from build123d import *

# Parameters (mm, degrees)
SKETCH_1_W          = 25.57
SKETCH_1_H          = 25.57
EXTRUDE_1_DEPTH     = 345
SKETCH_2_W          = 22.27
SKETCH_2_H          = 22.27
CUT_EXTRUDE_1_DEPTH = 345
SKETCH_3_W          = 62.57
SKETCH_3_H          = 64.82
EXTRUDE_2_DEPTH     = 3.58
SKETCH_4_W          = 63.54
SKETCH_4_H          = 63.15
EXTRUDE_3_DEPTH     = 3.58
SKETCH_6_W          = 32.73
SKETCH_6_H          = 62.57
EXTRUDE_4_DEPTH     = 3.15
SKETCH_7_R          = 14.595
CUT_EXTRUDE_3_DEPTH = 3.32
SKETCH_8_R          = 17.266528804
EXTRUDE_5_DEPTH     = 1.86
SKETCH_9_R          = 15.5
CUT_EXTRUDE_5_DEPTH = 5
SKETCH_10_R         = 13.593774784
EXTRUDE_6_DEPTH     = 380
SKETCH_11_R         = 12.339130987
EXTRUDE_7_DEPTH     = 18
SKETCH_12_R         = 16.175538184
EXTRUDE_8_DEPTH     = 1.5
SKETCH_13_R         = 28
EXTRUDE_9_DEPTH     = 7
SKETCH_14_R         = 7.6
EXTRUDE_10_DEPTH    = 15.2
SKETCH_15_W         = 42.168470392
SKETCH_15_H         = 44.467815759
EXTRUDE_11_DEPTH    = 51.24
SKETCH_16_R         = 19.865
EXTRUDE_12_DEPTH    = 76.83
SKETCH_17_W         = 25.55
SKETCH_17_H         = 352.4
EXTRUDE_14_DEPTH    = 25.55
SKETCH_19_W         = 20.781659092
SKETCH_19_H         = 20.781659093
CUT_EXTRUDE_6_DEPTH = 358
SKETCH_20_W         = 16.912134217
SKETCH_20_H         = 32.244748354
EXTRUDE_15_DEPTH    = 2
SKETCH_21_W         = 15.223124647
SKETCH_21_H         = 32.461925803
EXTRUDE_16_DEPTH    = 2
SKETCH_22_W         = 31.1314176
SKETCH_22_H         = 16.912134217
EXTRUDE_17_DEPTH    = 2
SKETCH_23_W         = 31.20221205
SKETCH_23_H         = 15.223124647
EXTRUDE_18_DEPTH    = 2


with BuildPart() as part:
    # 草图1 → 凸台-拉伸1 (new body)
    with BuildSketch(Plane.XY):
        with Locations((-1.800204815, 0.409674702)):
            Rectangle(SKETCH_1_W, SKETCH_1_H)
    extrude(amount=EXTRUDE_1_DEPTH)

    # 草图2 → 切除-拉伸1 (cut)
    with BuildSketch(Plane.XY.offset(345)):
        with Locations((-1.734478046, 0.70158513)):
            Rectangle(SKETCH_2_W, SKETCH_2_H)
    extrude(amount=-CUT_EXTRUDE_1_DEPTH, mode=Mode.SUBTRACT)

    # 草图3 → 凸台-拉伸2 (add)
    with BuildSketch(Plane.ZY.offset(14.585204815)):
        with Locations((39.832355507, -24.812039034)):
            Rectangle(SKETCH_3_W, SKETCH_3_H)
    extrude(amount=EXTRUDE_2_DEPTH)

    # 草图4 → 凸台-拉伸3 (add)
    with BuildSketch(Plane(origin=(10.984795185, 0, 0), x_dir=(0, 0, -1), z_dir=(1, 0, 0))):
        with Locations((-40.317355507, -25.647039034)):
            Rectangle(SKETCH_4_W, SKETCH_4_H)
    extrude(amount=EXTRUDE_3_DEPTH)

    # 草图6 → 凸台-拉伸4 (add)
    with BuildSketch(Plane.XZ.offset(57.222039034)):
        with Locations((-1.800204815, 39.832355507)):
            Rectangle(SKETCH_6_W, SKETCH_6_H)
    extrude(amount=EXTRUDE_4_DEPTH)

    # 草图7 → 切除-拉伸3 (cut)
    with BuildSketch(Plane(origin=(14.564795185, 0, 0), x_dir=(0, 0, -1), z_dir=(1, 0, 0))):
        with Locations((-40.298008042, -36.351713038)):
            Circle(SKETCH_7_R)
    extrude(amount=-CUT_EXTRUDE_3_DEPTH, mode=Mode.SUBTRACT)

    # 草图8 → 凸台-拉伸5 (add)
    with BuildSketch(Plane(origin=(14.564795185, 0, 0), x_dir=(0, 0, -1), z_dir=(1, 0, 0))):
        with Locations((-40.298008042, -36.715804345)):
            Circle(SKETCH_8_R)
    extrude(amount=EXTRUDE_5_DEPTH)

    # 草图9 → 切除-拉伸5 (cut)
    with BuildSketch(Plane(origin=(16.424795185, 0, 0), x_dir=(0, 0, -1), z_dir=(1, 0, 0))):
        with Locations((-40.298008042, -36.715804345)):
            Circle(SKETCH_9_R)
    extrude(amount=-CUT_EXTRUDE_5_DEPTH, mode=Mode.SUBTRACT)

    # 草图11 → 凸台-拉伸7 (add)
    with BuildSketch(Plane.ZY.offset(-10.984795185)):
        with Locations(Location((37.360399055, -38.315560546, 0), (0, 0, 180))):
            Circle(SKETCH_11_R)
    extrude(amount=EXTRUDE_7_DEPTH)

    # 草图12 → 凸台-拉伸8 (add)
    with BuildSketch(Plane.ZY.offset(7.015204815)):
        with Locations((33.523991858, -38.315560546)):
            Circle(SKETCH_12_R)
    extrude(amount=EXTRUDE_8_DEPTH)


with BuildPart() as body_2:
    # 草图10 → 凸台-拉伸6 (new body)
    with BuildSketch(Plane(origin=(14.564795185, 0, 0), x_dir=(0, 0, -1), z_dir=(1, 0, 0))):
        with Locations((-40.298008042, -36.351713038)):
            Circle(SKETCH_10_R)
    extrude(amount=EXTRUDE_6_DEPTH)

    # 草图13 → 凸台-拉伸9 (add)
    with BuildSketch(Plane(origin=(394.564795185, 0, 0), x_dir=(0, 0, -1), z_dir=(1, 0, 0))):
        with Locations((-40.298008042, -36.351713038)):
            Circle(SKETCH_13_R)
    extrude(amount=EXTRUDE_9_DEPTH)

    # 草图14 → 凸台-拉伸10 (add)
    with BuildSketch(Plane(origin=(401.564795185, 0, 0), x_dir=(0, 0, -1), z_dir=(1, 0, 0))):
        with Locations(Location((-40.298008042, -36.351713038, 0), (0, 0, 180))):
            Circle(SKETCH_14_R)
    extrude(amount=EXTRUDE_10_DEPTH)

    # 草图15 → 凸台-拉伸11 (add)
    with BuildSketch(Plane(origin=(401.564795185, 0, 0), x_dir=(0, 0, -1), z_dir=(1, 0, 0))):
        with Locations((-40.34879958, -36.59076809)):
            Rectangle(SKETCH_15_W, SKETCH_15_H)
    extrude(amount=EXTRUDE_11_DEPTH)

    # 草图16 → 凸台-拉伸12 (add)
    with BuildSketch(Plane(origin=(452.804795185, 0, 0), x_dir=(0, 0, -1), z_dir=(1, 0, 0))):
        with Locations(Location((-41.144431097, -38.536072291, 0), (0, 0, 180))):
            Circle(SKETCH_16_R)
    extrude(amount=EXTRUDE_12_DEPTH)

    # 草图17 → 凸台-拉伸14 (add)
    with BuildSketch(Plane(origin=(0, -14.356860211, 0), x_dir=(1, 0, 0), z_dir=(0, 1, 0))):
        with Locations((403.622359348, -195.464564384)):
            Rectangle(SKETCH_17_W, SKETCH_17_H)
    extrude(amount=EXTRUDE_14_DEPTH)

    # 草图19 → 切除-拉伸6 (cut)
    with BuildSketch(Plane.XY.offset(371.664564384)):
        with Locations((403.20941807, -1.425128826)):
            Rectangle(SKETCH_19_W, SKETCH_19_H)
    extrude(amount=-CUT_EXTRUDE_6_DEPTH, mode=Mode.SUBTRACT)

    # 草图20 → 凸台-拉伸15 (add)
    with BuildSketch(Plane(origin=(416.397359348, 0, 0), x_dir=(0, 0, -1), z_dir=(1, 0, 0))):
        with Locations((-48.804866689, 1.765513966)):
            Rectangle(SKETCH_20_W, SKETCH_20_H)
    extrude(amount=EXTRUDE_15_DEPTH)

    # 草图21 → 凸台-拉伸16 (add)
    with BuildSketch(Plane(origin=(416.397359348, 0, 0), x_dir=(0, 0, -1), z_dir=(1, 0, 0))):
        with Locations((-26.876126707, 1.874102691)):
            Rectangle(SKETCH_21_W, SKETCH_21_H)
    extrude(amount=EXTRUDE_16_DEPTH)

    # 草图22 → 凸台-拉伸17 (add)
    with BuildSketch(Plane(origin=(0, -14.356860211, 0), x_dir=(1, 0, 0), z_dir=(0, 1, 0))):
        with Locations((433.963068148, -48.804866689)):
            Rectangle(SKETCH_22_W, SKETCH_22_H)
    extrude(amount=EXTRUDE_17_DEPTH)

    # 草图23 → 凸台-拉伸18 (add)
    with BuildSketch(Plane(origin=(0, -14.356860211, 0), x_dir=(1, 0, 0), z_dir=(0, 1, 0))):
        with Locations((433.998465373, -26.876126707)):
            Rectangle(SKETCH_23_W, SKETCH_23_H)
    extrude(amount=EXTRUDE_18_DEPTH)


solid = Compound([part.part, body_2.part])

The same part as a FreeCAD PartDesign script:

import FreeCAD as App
import Part
import Sketcher
Q = App.Units.Quantity

doc = App.newDocument("Part")
params = doc.addObject("Spreadsheet::Sheet", "Params")
for row, (alias, value) in enumerate([
    ("sketch1_width", "25.57 mm"),
    ("pad1_length", "345 mm"),
    ("sketch2_width", "22.27 mm"),
    ("pocket1_length", "345 mm"),
    ("sketch3_width", "64.82 mm"),
    ("sketch3_height", "62.57 mm"),
    ("pad2_length", "3.58 mm"),
    ("sketch4_width", "63.15 mm"),
    ("sketch4_height", "63.54 mm"),
    ("pad3_length", "3.58 mm"),
    ("sketch5_width", "32.73 mm"),
    ("sketch5_height", "62.57 mm"),
    ("pad4_length", "3.15 mm"),
    ("sketch6_diameter", "29.19 mm"),
    ("pocket2_length", "3.32 mm"),
    ("pad5_length", "1.86 mm"),
    ("sketch8_diameter", "31 mm"),
    ("pocket3_length", "5 mm"),
    ("pad6_length", "18 mm"),
    ("pad7_length", "1.5 mm"),
    ("pad8_length", "380 mm"),
    ("sketch12_diameter", "56 mm"),
    ("pad9_length", "7 mm"),
    ("sketch13_diameter", "15.2 mm"),
    ("pad10_length", "15.2 mm"),
    ("pad11_length", "51.24 mm"),
    ("sketch15_diameter", "39.73 mm"),
    ("pad12_length", "76.83 mm"),
    ("sketch16_height", "352.4 mm"),
    ("sketch16_width", "25.55 mm"),
    ("pad13_length", "25.55 mm"),
    ("pocket4_length", "358 mm"),
    ("pad14_length", "2 mm"),
    ("pad15_length", "2 mm"),
    ("pad16_length", "2 mm"),
    ("pad17_length", "2 mm"),
], start=1):
    params.set(f"A{row}", alias)
    params.set(f"B{row}", "=" + value)
    params.setAlias(f"B{row}", alias)

body = doc.addObject("PartDesign::Body", "Body")

sketch1 = doc.addObject("Sketcher::SketchObject", "Sketch")
body.addObject(sketch1)
sketch1.AttachmentSupport = (doc.XY_Plane, [""])
sketch1.MapMode = "FlatFace"
sketch1.addGeometry([
    Part.LineSegment(App.Vector(-15, 13, 0), App.Vector(-15, -12, 0)),
    Part.LineSegment(App.Vector(-15, -12, 0), App.Vector(11, -12, 0)),
    Part.LineSegment(App.Vector(11, -12, 0), App.Vector(11, 13, 0)),
    Part.LineSegment(App.Vector(11, 13, 0), App.Vector(-15, 13, 0)),
], False)
sketch1.addConstraint([
    Sketcher.Constraint("Coincident", 0, 2, 1, 1),
    Sketcher.Constraint("Coincident", 1, 2, 2, 1),
    Sketcher.Constraint("Coincident", 2, 2, 3, 1),
    Sketcher.Constraint("Coincident", 3, 2, 0, 1),
    Sketcher.Constraint("Vertical", 0),
    Sketcher.Constraint("Horizontal", 1),
    Sketcher.Constraint("Vertical", 2),
    Sketcher.Constraint("Horizontal", 3),
    Sketcher.Constraint("Equal", 3, 0),
    Sketcher.Constraint("DistanceX", 1, 1, 1, 2, Q("25.57 mm")),
    Sketcher.Constraint("DistanceX", 0, 2, -1, 1, Q("14.585205 mm")),
    Sketcher.Constraint("DistanceY", 0, 2, -1, 1, Q("12.375325 mm")),
])
sketch1.setExpression("Constraints[9]", "Params.sketch1_width")
pad1 = doc.addObject("PartDesign::Pad", "Pad")
body.addObject(pad1)
pad1.Profile = sketch1
pad1.setExpression("Length", "Params.pad1_length")

sketch2 = doc.addObject("Sketcher::SketchObject", "Sketch001")
body.addObject(sketch2)
sketch2.AttachmentSupport = (doc.XY_Plane, [""])
sketch2.MapMode = "FlatFace"
sketch2.AttachmentOffset = App.Placement(App.Vector(0, 0, 345), App.Rotation())
sketch2.addGeometry([
    Part.LineSegment(App.Vector(-13, 12, 0), App.Vector(-13, -10, 0)),
    Part.LineSegment(App.Vector(-13, -10, 0), App.Vector(9, -10, 0)),
    Part.LineSegment(App.Vector(9, -10, 0), App.Vector(9, 12, 0)),
    Part.LineSegment(App.Vector(9, 12, 0), App.Vector(-13, 12, 0)),
], False)
sketch2.addConstraint([
    Sketcher.Constraint("Coincident", 0, 2, 1, 1),
    Sketcher.Constraint("Coincident", 1, 2, 2, 1),
    Sketcher.Constraint("Coincident", 2, 2, 3, 1),
    Sketcher.Constraint("Coincident", 3, 2, 0, 1),
    Sketcher.Constraint("Vertical", 0),
    Sketcher.Constraint("Horizontal", 1),
    Sketcher.Constraint("Vertical", 2),
    Sketcher.Constraint("Horizontal", 3),
    Sketcher.Constraint("Equal", 3, 0),
    Sketcher.Constraint("DistanceX", 1, 1, 1, 2, Q("22.27 mm")),
    Sketcher.Constraint("DistanceX", 0, 2, -1, 1, Q("12.869478 mm")),
    Sketcher.Constraint("DistanceY", 0, 2, -1, 1, Q("10.433415 mm")),
])
sketch2.setExpression("Constraints[9]", "Params.sketch2_width")
pocket1 = doc.addObject("PartDesign::Pocket", "Pocket")
body.addObject(pocket1)
pocket1.Profile = sketch2
pocket1.setExpression("Length", "Params.pocket1_length")

sketch3 = doc.addObject("Sketcher::SketchObject", "Sketch002")
body.addObject(sketch3)
sketch3.AttachmentSupport = (doc.YZ_Plane, [""])
sketch3.MapMode = "FlatFace"
sketch3.AttachmentOffset = App.Placement(App.Vector(0, 0, -14.585205), App.Rotation())
sketch3.addGeometry([
    Part.LineSegment(App.Vector(8, 9, 0), App.Vector(-57, 9, 0)),
    Part.LineSegment(App.Vector(-57, 9, 0), App.Vector(-57, 71, 0)),
    Part.LineSegment(App.Vector(-57, 71, 0), App.Vector(8, 71, 0)),
    Part.LineSegment(App.Vector(8, 71, 0), App.Vector(8, 9, 0)),
], False)
sketch3.addConstraint([
    Sketcher.Constraint("Coincident", 0, 2, 1, 1),
    Sketcher.Constraint("Coincident", 1, 2, 2, 1),
    Sketcher.Constraint("Coincident", 2, 2, 3, 1),
    Sketcher.Constraint("Coincident", 3, 2, 0, 1),
    Sketcher.Constraint("Horizontal", 0),
    Sketcher.Constraint("Vertical", 1),
    Sketcher.Constraint("Horizontal", 2),
    Sketcher.Constraint("Vertical", 3),
    Sketcher.Constraint("DistanceX", 0, 2, 0, 1, Q("64.82 mm")),
    Sketcher.Constraint("DistanceY", 1, 1, 1, 2, Q("62.57 mm")),
    Sketcher.Constraint("DistanceX", 0, 2, -1, 1, Q("57.222039 mm")),
    Sketcher.Constraint("DistanceY", -1, 1, 0, 2, Q("8.547356 mm")),
])
sketch3.setExpression("Constraints[8]", "Params.sketch3_width")
sketch3.setExpression("Constraints[9]", "Params.sketch3_height")
pad2 = doc.addObject("PartDesign::Pad", "Pad001")
body.addObject(pad2)
pad2.Profile = sketch3
pad2.setExpression("Length", "Params.pad2_length")
pad2.Reversed = True

sketch4 = doc.addObject("Sketcher::SketchObject", "Sketch003")
body.addObject(sketch4)
sketch4.AttachmentSupport = (doc.YZ_Plane, [""])
sketch4.MapMode = "FlatFace"
sketch4.AttachmentOffset = App.Placement(App.Vector(0, 0, 10.984795), App.Rotation())
sketch4.addGeometry([
    Part.LineSegment(App.Vector(6, 72, 0), App.Vector(-57, 72, 0)),
    Part.LineSegment(App.Vector(-57, 72, 0), App.Vector(-57, 9, 0)),
    Part.LineSegment(App.Vector(-57, 9, 0), App.Vector(6, 9, 0)),
    Part.LineSegment(App.Vector(6, 9, 0), App.Vector(6, 72, 0)),
], False)
sketch4.addConstraint([
    Sketcher.Constraint("Coincident", 0, 2, 1, 1),
    Sketcher.Constraint("Coincident", 1, 2, 2, 1),
    Sketcher.Constraint("Coincident", 2, 2, 3, 1),
    Sketcher.Constraint("Coincident", 3, 2, 0, 1),
    Sketcher.Constraint("Horizontal", 0),
    Sketcher.Constraint("Vertical", 1),
    Sketcher.Constraint("Horizontal", 2),
    Sketcher.Constraint("Vertical", 3),
    Sketcher.Constraint("DistanceX", 0, 2, 0, 1, Q("63.15 mm")),
    Sketcher.Constraint("DistanceY", 1, 2, 1, 1, Q("63.54 mm")),
    Sketcher.Constraint("DistanceX", 0, 2, -1, 1, Q("57.222039 mm")),
    Sketcher.Constraint("DistanceY", -1, 1, 0, 2, Q("72.087356 mm")),
])
sketch4.setExpression("Constraints[8]", "Params.sketch4_width")
sketch4.setExpression("Constraints[9]", "Params.sketch4_height")
pad3 = doc.addObject("PartDesign::Pad", "Pad002")
body.addObject(pad3)
pad3.Profile = sketch4
pad3.setExpression("Length", "Params.pad3_length")

sketch5 = doc.addObject("Sketcher::SketchObject", "Sketch004")
body.addObject(sketch5)
sketch5.AttachmentSupport = (doc.XZ_Plane, [""])
sketch5.MapMode = "FlatFace"
sketch5.AttachmentOffset = App.Placement(App.Vector(0, 0, 57.222039), App.Rotation())
sketch5.addGeometry([
    Part.LineSegment(App.Vector(-18, 71, 0), App.Vector(-18, 9, 0)),
    Part.LineSegment(App.Vector(-18, 9, 0), App.Vector(15, 9, 0)),
    Part.LineSegment(App.Vector(15, 9, 0), App.Vector(15, 71, 0)),
    Part.LineSegment(App.Vector(15, 71, 0), App.Vector(-18, 71, 0)),
], False)
sketch5.addConstraint([
    Sketcher.Constraint("Coincident", 0, 2, 1, 1),
    Sketcher.Constraint("Coincident", 1, 2, 2, 1),
    Sketcher.Constraint("Coincident", 2, 2, 3, 1),
    Sketcher.Constraint("Coincident", 3, 2, 0, 1),
    Sketcher.Constraint("Vertical", 0),
    Sketcher.Constraint("Horizontal", 1),
    Sketcher.Constraint("Vertical", 2),
    Sketcher.Constraint("Horizontal", 3),
    Sketcher.Constraint("DistanceX", 1, 1, 1, 2, Q("32.73 mm")),
    Sketcher.Constraint("DistanceY", 0, 2, 0, 1, Q("62.57 mm")),
    Sketcher.Constraint("DistanceX", 0, 2, -1, 1, Q("18.165205 mm")),
    Sketcher.Constraint("DistanceY", -1, 1, 0, 2, Q("8.547356 mm")),
])
sketch5.setExpression("Constraints[8]", "Params.sketch5_width")
sketch5.setExpression("Constraints[9]", "Params.sketch5_height")
pad4 = doc.addObject("PartDesign::Pad", "Pad003")
body.addObject(pad4)
pad4.Profile = sketch5
pad4.setExpression("Length", "Params.pad4_length")

sketch6 = doc.addObject("Sketcher::SketchObject", "Sketch005")
body.addObject(sketch6)
sketch6.AttachmentSupport = (doc.YZ_Plane, [""])
sketch6.MapMode = "FlatFace"
sketch6.AttachmentOffset = App.Placement(App.Vector(0, 0, 14.564795), App.Rotation())
sketch6.addGeometry(Part.Circle(App.Vector(-36, 40, 0), App.Vector(0, 0, 1), 15), False)
sketch6.addConstraint([
    Sketcher.Constraint("Diameter", 0, Q("29.19 mm")),
    Sketcher.Constraint("DistanceY", -1, 1, 0, 3, Q("40.298008 mm")),
    Sketcher.Constraint("DistanceX", 0, 3, -1, 1, Q("36.351713 mm")),
])
sketch6.setExpression("Constraints[0]", "Params.sketch6_diameter")
pocket2 = doc.addObject("PartDesign::Pocket", "Pocket001")
body.addObject(pocket2)
pocket2.Profile = sketch6
pocket2.setExpression("Length", "Params.pocket2_length")

sketch7 = doc.addObject("Sketcher::SketchObject", "Sketch006")
body.addObject(sketch7)
sketch7.AttachmentSupport = (doc.YZ_Plane, [""])
sketch7.MapMode = "FlatFace"
sketch7.AttachmentOffset = App.Placement(App.Vector(0, 0, 14.564795), App.Rotation())
sketch7.addGeometry(Part.Circle(App.Vector(-37, 40, 0), App.Vector(0, 0, 1), 17), False)
sketch7.addConstraint([
    Sketcher.Constraint("Diameter", 0, Q("34.533058 mm")),
    Sketcher.Constraint("DistanceY", -1, 1, 0, 3, Q("40.298008 mm")),
    Sketcher.Constraint("DistanceX", 0, 3, -1, 1, Q("36.715804 mm")),
])
pad5 = doc.addObject("PartDesign::Pad", "Pad004")
body.addObject(pad5)
pad5.Profile = sketch7
pad5.setExpression("Length", "Params.pad5_length")

sketch8 = doc.addObject("Sketcher::SketchObject", "Sketch007")
body.addObject(sketch8)
sketch8.AttachmentSupport = (doc.YZ_Plane, [""])
sketch8.MapMode = "FlatFace"
sketch8.AttachmentOffset = App.Placement(App.Vector(0, 0, 16.424795), App.Rotation())
sketch8.addGeometry(Part.Circle(App.Vector(-37, 40, 0), App.Vector(0, 0, 1), 16), False)
sketch8.addConstraint([
    Sketcher.Constraint("Diameter", 0, Q("31 mm")),
    Sketcher.Constraint("DistanceY", -1, 1, 0, 3, Q("40.298008 mm")),
    Sketcher.Constraint("DistanceX", 0, 3, -1, 1, Q("36.715804 mm")),
])
sketch8.setExpression("Constraints[0]", "Params.sketch8_diameter")
pocket3 = doc.addObject("PartDesign::Pocket", "Pocket002")
body.addObject(pocket3)
pocket3.Profile = sketch8
pocket3.setExpression("Length", "Params.pocket3_length")

sketch9 = doc.addObject("Sketcher::SketchObject", "Sketch008")
body.addObject(sketch9)
sketch9.AttachmentSupport = (doc.YZ_Plane, [""])
sketch9.MapMode = "FlatFace"
sketch9.AttachmentOffset = App.Placement(App.Vector(0, 0, 10.984795), App.Rotation())
sketch9.addGeometry(Part.Circle(App.Vector(-38, 37, 0), App.Vector(0, 0, 1), 12), False)
sketch9.addConstraint([
    Sketcher.Constraint("Diameter", 0, Q("24.678262 mm")),
    Sketcher.Constraint("DistanceY", -1, 1, 0, 3, Q("37.360399 mm")),
    Sketcher.Constraint("DistanceX", 0, 3, -1, 1, Q("38.315561 mm")),
])
pad6 = doc.addObject("PartDesign::Pad", "Pad005")
body.addObject(pad6)
pad6.Profile = sketch9
pad6.setExpression("Length", "Params.pad6_length")
pad6.Reversed = True

sketch10 = doc.addObject("Sketcher::SketchObject", "Sketch009")
body.addObject(sketch10)
sketch10.AttachmentSupport = (doc.YZ_Plane, [""])
sketch10.MapMode = "FlatFace"
sketch10.AttachmentOffset = App.Placement(App.Vector(0, 0, -7.015205), App.Rotation())
sketch10.addGeometry(Part.Circle(App.Vector(-38, 34, 0), App.Vector(0, 0, 1), 16), False)
sketch10.addConstraint([
    Sketcher.Constraint("Diameter", 0, Q("32.351076 mm")),
    Sketcher.Constraint("DistanceX", 0, 3, -1, 1, Q("38.315561 mm")),
    Sketcher.Constraint("DistanceY", -1, 1, 0, 3, Q("33.523992 mm")),
])
pad7 = doc.addObject("PartDesign::Pad", "Pad006")
body.addObject(pad7)
pad7.Profile = sketch10
pad7.setExpression("Length", "Params.pad7_length")
pad7.Reversed = True
body2 = doc.addObject("PartDesign::Body", "Body001")

sketch11 = doc.addObject("Sketcher::SketchObject", "Sketch010")
body2.addObject(sketch11)
sketch11.AttachmentSupport = (doc.getObject("YZ_Plane001"), [""])
sketch11.MapMode = "FlatFace"
sketch11.AttachmentOffset = App.Placement(App.Vector(0, 0, 14.564795), App.Rotation())
sketch11.addGeometry(Part.Circle(App.Vector(-36, 40, 0), App.Vector(0, 0, 1), 14), False)
sketch11.addConstraint([
    Sketcher.Constraint("Diameter", 0, Q("27.18755 mm")),
    Sketcher.Constraint("DistanceY", -1, 1, 0, 3, Q("40.298008 mm")),
    Sketcher.Constraint("DistanceX", 0, 3, -1, 1, Q("36.351713 mm")),
])
pad8 = doc.addObject("PartDesign::Pad", "Pad007")
body2.addObject(pad8)
pad8.Profile = sketch11
pad8.setExpression("Length", "Params.pad8_length")

sketch12 = doc.addObject("Sketcher::SketchObject", "Sketch011")
body2.addObject(sketch12)
sketch12.AttachmentSupport = (doc.getObject("YZ_Plane001"), [""])
sketch12.MapMode = "FlatFace"
sketch12.AttachmentOffset = App.Placement(App.Vector(0, 0, 394.564795), App.Rotation())
sketch12.addGeometry(Part.Circle(App.Vector(-36, 40, 0), App.Vector(0, 0, 1), 28), False)
sketch12.addConstraint([
    Sketcher.Constraint("Diameter", 0, Q("56 mm")),
    Sketcher.Constraint("DistanceY", -1, 1, 0, 3, Q("40.298008 mm")),
    Sketcher.Constraint("DistanceX", 0, 3, -1, 1, Q("36.351713 mm")),
])
sketch12.setExpression("Constraints[0]", "Params.sketch12_diameter")
pad9 = doc.addObject("PartDesign::Pad", "Pad008")
body2.addObject(pad9)
pad9.Profile = sketch12
pad9.setExpression("Length", "Params.pad9_length")

sketch13 = doc.addObject("Sketcher::SketchObject", "Sketch012")
body2.addObject(sketch13)
sketch13.AttachmentSupport = (doc.getObject("YZ_Plane001"), [""])
sketch13.MapMode = "FlatFace"
sketch13.AttachmentOffset = App.Placement(App.Vector(0, 0, 401.564795), App.Rotation())
sketch13.addGeometry(Part.Circle(App.Vector(-36, 40, 0), App.Vector(0, 0, 1), 8), False)
sketch13.addConstraint([
    Sketcher.Constraint("Diameter", 0, Q("15.2 mm")),
    Sketcher.Constraint("DistanceY", -1, 1, 0, 3, Q("40.298008 mm")),
    Sketcher.Constraint("DistanceX", 0, 3, -1, 1, Q("36.351713 mm")),
])
sketch13.setExpression("Constraints[0]", "Params.sketch13_diameter")
pad10 = doc.addObject("PartDesign::Pad", "Pad009")
body2.addObject(pad10)
pad10.Profile = sketch13
pad10.setExpression("Length", "Params.pad10_length")

sketch14 = doc.addObject("Sketcher::SketchObject", "Sketch013")
body2.addObject(sketch14)
sketch14.AttachmentSupport = (doc.getObject("YZ_Plane001"), [""])
sketch14.MapMode = "FlatFace"
sketch14.AttachmentOffset = App.Placement(App.Vector(0, 0, 401.564795), App.Rotation())
sketch14.addGeometry([
    Part.LineSegment(App.Vector(-14, 61, 0), App.Vector(-59, 61, 0)),
    Part.LineSegment(App.Vector(-59, 61, 0), App.Vector(-59, 19, 0)),
    Part.LineSegment(App.Vector(-59, 19, 0), App.Vector(-14, 19, 0)),
    Part.LineSegment(App.Vector(-14, 19, 0), App.Vector(-14, 61, 0)),
], False)
sketch14.addConstraint([
    Sketcher.Constraint("Coincident", 0, 2, 1, 1),
    Sketcher.Constraint("Coincident", 1, 2, 2, 1),
    Sketcher.Constraint("Coincident", 2, 2, 3, 1),
    Sketcher.Constraint("Coincident", 3, 2, 0, 1),
    Sketcher.Constraint("Horizontal", 0),
    Sketcher.Constraint("Vertical", 1),
    Sketcher.Constraint("Horizontal", 2),
    Sketcher.Constraint("Vertical", 3),
    Sketcher.Constraint("DistanceY", 1, 2, 1, 1, Q("42.16847 mm")),
    Sketcher.Constraint("DistanceX", 0, 2, 0, 1, Q("44.467816 mm")),
    Sketcher.Constraint("DistanceX", 2, 2, -1, 1, Q("14.35686 mm")),
    Sketcher.Constraint("DistanceY", -1, 1, 0, 2, Q("61.433035 mm")),
])
pad11 = doc.addObject("PartDesign::Pad", "Pad010")
body2.addObject(pad11)
pad11.Profile = sketch14
pad11.setExpression("Length", "Params.pad11_length")

sketch15 = doc.addObject("Sketcher::SketchObject", "Sketch014")
body2.addObject(sketch15)
sketch15.AttachmentSupport = (doc.getObject("YZ_Plane001"), [""])
sketch15.MapMode = "FlatFace"
sketch15.AttachmentOffset = App.Placement(App.Vector(0, 0, 452.804795), App.Rotation())
sketch15.addGeometry(Part.Circle(App.Vector(-39, 41, 0), App.Vector(0, 0, 1), 20), False)
sketch15.addConstraint([
    Sketcher.Constraint("Diameter", 0, Q("39.73 mm")),
    Sketcher.Constraint("DistanceY", -1, 1, 0, 3, Q("41.144431 mm")),
    Sketcher.Constraint("DistanceX", 0, 3, -1, 1, Q("38.536072 mm")),
])
sketch15.setExpression("Constraints[0]", "Params.sketch15_diameter")
pad12 = doc.addObject("PartDesign::Pad", "Pad011")
body2.addObject(pad12)
pad12.Profile = sketch15
pad12.setExpression("Length", "Params.pad12_length")

sketch16 = doc.addObject("Sketcher::SketchObject", "Sketch015")
body2.addObject(sketch16)
sketch16.AttachmentSupport = (doc.getObject("XZ_Plane001"), [""])
sketch16.MapMode = "FlatFace"
sketch16.AttachmentOffset = App.Placement(App.Vector(0, 0, 14.35686), App.Rotation())
sketch16.addGeometry([
    Part.LineSegment(App.Vector(391, 19, 0), App.Vector(391, 372, 0)),
    Part.LineSegment(App.Vector(391, 372, 0), App.Vector(416, 372, 0)),
    Part.LineSegment(App.Vector(416, 372, 0), App.Vector(416, 19, 0)),
    Part.LineSegment(App.Vector(416, 19, 0), App.Vector(391, 19, 0)),
], False)
sketch16.addConstraint([
    Sketcher.Constraint("Coincident", 0, 2, 1, 1),
    Sketcher.Constraint("Coincident", 1, 2, 2, 1),
    Sketcher.Constraint("Coincident", 2, 2, 3, 1),
    Sketcher.Constraint("Coincident", 3, 2, 0, 1),
    Sketcher.Constraint("Vertical", 0),
    Sketcher.Constraint("Horizontal", 1),
    Sketcher.Constraint("Vertical", 2),
    Sketcher.Constraint("Horizontal", 3),
    Sketcher.Constraint("DistanceY", 0, 1, 0, 2, Q("352.4 mm")),
    Sketcher.Constraint("DistanceX", 1, 1, 1, 2, Q("25.55 mm")),
    Sketcher.Constraint("DistanceX", -1, 1, 0, 2, Q("390.847359 mm")),
    Sketcher.Constraint("DistanceY", -1, 1, 0, 2, Q("371.664564 mm")),
])
sketch16.setExpression("Constraints[8]", "Params.sketch16_height")
sketch16.setExpression("Constraints[9]", "Params.sketch16_width")
pad13 = doc.addObject("PartDesign::Pad", "Pad012")
body2.addObject(pad13)
pad13.Profile = sketch16
pad13.setExpression("Length", "Params.pad13_length")
pad13.Reversed = True

sketch17 = doc.addObject("Sketcher::SketchObject", "Sketch016")
body2.addObject(sketch17)
sketch17.AttachmentSupport = (doc.getObject("XY_Plane001"), [""])
sketch17.MapMode = "FlatFace"
sketch17.AttachmentOffset = App.Placement(App.Vector(0, 0, 371.664564), App.Rotation())
sketch17.addGeometry([
    Part.LineSegment(App.Vector(393, 9, 0), App.Vector(393, -12, 0)),
    Part.LineSegment(App.Vector(393, -12, 0), App.Vector(414, -12, 0)),
    Part.LineSegment(App.Vector(414, -12, 0), App.Vector(414, 9, 0)),
    Part.LineSegment(App.Vector(414, 9, 0), App.Vector(393, 9, 0)),
], False)
sketch17.addConstraint([
    Sketcher.Constraint("Coincident", 0, 2, 1, 1),
    Sketcher.Constraint("Coincident", 1, 2, 2, 1),
    Sketcher.Constraint("Coincident", 2, 2, 3, 1),
    Sketcher.Constraint("Coincident", 3, 2, 0, 1),
    Sketcher.Constraint("Vertical", 0),
    Sketcher.Constraint("Horizontal", 1),
    Sketcher.Constraint("Vertical", 2),
    Sketcher.Constraint("Horizontal", 3),
    Sketcher.Constraint("Equal", 3, 0),
    Sketcher.Constraint("DistanceX", 1, 1, 1, 2, Q("20.781659 mm")),
    Sketcher.Constraint("DistanceY", -1, 1, 2, 2, Q("8.965701 mm")),
    Sketcher.Constraint("DistanceX", -1, 1, 0, 2, Q("392.818589 mm")),
])
pocket4 = doc.addObject("PartDesign::Pocket", "Pocket003")
body2.addObject(pocket4)
pocket4.Profile = sketch17
pocket4.setExpression("Length", "Params.pocket4_length")

sketch18 = doc.addObject("Sketcher::SketchObject", "Sketch017")
body2.addObject(sketch18)
sketch18.AttachmentSupport = (doc.getObject("YZ_Plane001"), [""])
sketch18.MapMode = "FlatFace"
sketch18.AttachmentOffset = App.Placement(App.Vector(0, 0, 416.397359), App.Rotation())
sketch18.addGeometry([
    Part.LineSegment(App.Vector(18, 57, 0), App.Vector(-14, 57, 0)),
    Part.LineSegment(App.Vector(-14, 57, 0), App.Vector(-14, 40, 0)),
    Part.LineSegment(App.Vector(-14, 40, 0), App.Vector(18, 40, 0)),
    Part.LineSegment(App.Vector(18, 40, 0), App.Vector(18, 57, 0)),
], False)
sketch18.addConstraint([
    Sketcher.Constraint("Coincident", 0, 2, 1, 1),
    Sketcher.Constraint("Coincident", 1, 2, 2, 1),
    Sketcher.Constraint("Coincident", 2, 2, 3, 1),
    Sketcher.Constraint("Coincident", 3, 2, 0, 1),
    Sketcher.Constraint("Horizontal", 0),
    Sketcher.Constraint("Vertical", 1),
    Sketcher.Constraint("Horizontal", 2),
    Sketcher.Constraint("Vertical", 3),
    Sketcher.Constraint("DistanceX", 0, 2, 0, 1, Q("32.244748 mm")),
    Sketcher.Constraint("DistanceY", -1, 1, 1, 2, Q("40.3488 mm")),
    Sketcher.Constraint("DistanceY", 1, 2, 1, 1, Q("16.912134 mm")),
    Sketcher.Constraint("DistanceX", 0, 2, -1, 1, Q("14.35686 mm")),
])
pad14 = doc.addObject("PartDesign::Pad", "Pad013")
body2.addObject(pad14)
pad14.Profile = sketch18
pad14.setExpression("Length", "Params.pad14_length")

sketch19 = doc.addObject("Sketcher::SketchObject", "Sketch018")
body2.addObject(sketch19)
sketch19.AttachmentSupport = (doc.getObject("YZ_Plane001"), [""])
sketch19.MapMode = "FlatFace"
sketch19.AttachmentOffset = App.Placement(App.Vector(0, 0, 416.397359), App.Rotation())
sketch19.addGeometry([
    Part.LineSegment(App.Vector(18, 34, 0), App.Vector(-14, 34, 0)),
    Part.LineSegment(App.Vector(-14, 34, 0), App.Vector(-14, 19, 0)),
    Part.LineSegment(App.Vector(-14, 19, 0), App.Vector(18, 19, 0)),
    Part.LineSegment(App.Vector(18, 19, 0), App.Vector(18, 34, 0)),
], False)
sketch19.addConstraint([
    Sketcher.Constraint("Coincident", 0, 2, 1, 1),
    Sketcher.Constraint("Coincident", 1, 2, 2, 1),
    Sketcher.Constraint("Coincident", 2, 2, 3, 1),
    Sketcher.Constraint("Coincident", 3, 2, 0, 1),
    Sketcher.Constraint("Horizontal", 0),
    Sketcher.Constraint("Vertical", 1),
    Sketcher.Constraint("Horizontal", 2),
    Sketcher.Constraint("Vertical", 3),
    Sketcher.Constraint("DistanceX", 0, 2, 0, 1, Q("32.461926 mm")),
    Sketcher.Constraint("DistanceY", 1, 2, 1, 1, Q("15.223125 mm")),
    Sketcher.Constraint("DistanceX", 0, 2, -1, 1, Q("14.35686 mm")),
    Sketcher.Constraint("DistanceY", -1, 1, 0, 2, Q("34.487689 mm")),
])
pad15 = doc.addObject("PartDesign::Pad", "Pad014")
body2.addObject(pad15)
pad15.Profile = sketch19
pad15.setExpression("Length", "Params.pad15_length")

sketch20 = doc.addObject("Sketcher::SketchObject", "Sketch019")
body2.addObject(sketch20)
sketch20.AttachmentSupport = (doc.getObject("XZ_Plane001"), [""])
sketch20.MapMode = "FlatFace"
sketch20.AttachmentOffset = App.Placement(App.Vector(0, 0, 14.35686), App.Rotation())
sketch20.addGeometry([
    Part.LineSegment(App.Vector(418, 40, 0), App.Vector(418, 57, 0)),
    Part.LineSegment(App.Vector(418, 57, 0), App.Vector(450, 57, 0)),
    Part.LineSegment(App.Vector(450, 57, 0), App.Vector(450, 40, 0)),
    Part.LineSegment(App.Vector(450, 40, 0), App.Vector(418, 40, 0)),
], False)
sketch20.addConstraint([
    Sketcher.Constraint("Coincident", 0, 2, 1, 1),
    Sketcher.Constraint("Coincident", 1, 2, 2, 1),
    Sketcher.Constraint("Coincident", 2, 2, 3, 1),
    Sketcher.Constraint("Coincident", 3, 2, 0, 1),
    Sketcher.Constraint("Vertical", 0),
    Sketcher.Constraint("Horizontal", 1),
    Sketcher.Constraint("Vertical", 2),
    Sketcher.Constraint("Horizontal", 3),
    Sketcher.Constraint("DistanceY", -1, 1, 2, 2, Q("40.3488 mm")),
    Sketcher.Constraint("DistanceX", 1, 1, 1, 2, Q("31.131418 mm")),
    Sketcher.Constraint("DistanceY", 0, 1, 0, 2, Q("16.912134 mm")),
    Sketcher.Constraint("DistanceX", -1, 1, 0, 2, Q("418.397359 mm")),
])
pad16 = doc.addObject("PartDesign::Pad", "Pad015")
body2.addObject(pad16)
pad16.Profile = sketch20
pad16.setExpression("Length", "Params.pad16_length")
pad16.Reversed = True

sketch21 = doc.addObject("Sketcher::SketchObject", "Sketch020")
body2.addObject(sketch21)
sketch21.AttachmentSupport = (doc.getObject("XZ_Plane001"), [""])
sketch21.MapMode = "FlatFace"
sketch21.AttachmentOffset = App.Placement(App.Vector(0, 0, 14.35686), App.Rotation())
sketch21.addGeometry([
    Part.LineSegment(App.Vector(418, 19, 0), App.Vector(418, 34, 0)),
    Part.LineSegment(App.Vector(418, 34, 0), App.Vector(450, 34, 0)),
    Part.LineSegment(App.Vector(450, 34, 0), App.Vector(450, 19, 0)),
    Part.LineSegment(App.Vector(450, 19, 0), App.Vector(418, 19, 0)),
], False)
sketch21.addConstraint([
    Sketcher.Constraint("Coincident", 0, 2, 1, 1),
    Sketcher.Constraint("Coincident", 1, 2, 2, 1),
    Sketcher.Constraint("Coincident", 2, 2, 3, 1),
    Sketcher.Constraint("Coincident", 3, 2, 0, 1),
    Sketcher.Constraint("Vertical", 0),
    Sketcher.Constraint("Horizontal", 1),
    Sketcher.Constraint("Vertical", 2),
    Sketcher.Constraint("Horizontal", 3),
    Sketcher.Constraint("DistanceX", 1, 1, 1, 2, Q("31.202212 mm")),
    Sketcher.Constraint("DistanceY", 0, 1, 0, 2, Q("15.223125 mm")),
    Sketcher.Constraint("DistanceX", -1, 1, 0, 2, Q("418.397359 mm")),
    Sketcher.Constraint("DistanceY", -1, 1, 0, 2, Q("34.487689 mm")),
])
pad17 = doc.addObject("PartDesign::Pad", "Pad016")
body2.addObject(pad17)
pad17.Profile = sketch21
pad17.setExpression("Length", "Params.pad17_length")
pad17.Reversed = True

doc.recompute()
